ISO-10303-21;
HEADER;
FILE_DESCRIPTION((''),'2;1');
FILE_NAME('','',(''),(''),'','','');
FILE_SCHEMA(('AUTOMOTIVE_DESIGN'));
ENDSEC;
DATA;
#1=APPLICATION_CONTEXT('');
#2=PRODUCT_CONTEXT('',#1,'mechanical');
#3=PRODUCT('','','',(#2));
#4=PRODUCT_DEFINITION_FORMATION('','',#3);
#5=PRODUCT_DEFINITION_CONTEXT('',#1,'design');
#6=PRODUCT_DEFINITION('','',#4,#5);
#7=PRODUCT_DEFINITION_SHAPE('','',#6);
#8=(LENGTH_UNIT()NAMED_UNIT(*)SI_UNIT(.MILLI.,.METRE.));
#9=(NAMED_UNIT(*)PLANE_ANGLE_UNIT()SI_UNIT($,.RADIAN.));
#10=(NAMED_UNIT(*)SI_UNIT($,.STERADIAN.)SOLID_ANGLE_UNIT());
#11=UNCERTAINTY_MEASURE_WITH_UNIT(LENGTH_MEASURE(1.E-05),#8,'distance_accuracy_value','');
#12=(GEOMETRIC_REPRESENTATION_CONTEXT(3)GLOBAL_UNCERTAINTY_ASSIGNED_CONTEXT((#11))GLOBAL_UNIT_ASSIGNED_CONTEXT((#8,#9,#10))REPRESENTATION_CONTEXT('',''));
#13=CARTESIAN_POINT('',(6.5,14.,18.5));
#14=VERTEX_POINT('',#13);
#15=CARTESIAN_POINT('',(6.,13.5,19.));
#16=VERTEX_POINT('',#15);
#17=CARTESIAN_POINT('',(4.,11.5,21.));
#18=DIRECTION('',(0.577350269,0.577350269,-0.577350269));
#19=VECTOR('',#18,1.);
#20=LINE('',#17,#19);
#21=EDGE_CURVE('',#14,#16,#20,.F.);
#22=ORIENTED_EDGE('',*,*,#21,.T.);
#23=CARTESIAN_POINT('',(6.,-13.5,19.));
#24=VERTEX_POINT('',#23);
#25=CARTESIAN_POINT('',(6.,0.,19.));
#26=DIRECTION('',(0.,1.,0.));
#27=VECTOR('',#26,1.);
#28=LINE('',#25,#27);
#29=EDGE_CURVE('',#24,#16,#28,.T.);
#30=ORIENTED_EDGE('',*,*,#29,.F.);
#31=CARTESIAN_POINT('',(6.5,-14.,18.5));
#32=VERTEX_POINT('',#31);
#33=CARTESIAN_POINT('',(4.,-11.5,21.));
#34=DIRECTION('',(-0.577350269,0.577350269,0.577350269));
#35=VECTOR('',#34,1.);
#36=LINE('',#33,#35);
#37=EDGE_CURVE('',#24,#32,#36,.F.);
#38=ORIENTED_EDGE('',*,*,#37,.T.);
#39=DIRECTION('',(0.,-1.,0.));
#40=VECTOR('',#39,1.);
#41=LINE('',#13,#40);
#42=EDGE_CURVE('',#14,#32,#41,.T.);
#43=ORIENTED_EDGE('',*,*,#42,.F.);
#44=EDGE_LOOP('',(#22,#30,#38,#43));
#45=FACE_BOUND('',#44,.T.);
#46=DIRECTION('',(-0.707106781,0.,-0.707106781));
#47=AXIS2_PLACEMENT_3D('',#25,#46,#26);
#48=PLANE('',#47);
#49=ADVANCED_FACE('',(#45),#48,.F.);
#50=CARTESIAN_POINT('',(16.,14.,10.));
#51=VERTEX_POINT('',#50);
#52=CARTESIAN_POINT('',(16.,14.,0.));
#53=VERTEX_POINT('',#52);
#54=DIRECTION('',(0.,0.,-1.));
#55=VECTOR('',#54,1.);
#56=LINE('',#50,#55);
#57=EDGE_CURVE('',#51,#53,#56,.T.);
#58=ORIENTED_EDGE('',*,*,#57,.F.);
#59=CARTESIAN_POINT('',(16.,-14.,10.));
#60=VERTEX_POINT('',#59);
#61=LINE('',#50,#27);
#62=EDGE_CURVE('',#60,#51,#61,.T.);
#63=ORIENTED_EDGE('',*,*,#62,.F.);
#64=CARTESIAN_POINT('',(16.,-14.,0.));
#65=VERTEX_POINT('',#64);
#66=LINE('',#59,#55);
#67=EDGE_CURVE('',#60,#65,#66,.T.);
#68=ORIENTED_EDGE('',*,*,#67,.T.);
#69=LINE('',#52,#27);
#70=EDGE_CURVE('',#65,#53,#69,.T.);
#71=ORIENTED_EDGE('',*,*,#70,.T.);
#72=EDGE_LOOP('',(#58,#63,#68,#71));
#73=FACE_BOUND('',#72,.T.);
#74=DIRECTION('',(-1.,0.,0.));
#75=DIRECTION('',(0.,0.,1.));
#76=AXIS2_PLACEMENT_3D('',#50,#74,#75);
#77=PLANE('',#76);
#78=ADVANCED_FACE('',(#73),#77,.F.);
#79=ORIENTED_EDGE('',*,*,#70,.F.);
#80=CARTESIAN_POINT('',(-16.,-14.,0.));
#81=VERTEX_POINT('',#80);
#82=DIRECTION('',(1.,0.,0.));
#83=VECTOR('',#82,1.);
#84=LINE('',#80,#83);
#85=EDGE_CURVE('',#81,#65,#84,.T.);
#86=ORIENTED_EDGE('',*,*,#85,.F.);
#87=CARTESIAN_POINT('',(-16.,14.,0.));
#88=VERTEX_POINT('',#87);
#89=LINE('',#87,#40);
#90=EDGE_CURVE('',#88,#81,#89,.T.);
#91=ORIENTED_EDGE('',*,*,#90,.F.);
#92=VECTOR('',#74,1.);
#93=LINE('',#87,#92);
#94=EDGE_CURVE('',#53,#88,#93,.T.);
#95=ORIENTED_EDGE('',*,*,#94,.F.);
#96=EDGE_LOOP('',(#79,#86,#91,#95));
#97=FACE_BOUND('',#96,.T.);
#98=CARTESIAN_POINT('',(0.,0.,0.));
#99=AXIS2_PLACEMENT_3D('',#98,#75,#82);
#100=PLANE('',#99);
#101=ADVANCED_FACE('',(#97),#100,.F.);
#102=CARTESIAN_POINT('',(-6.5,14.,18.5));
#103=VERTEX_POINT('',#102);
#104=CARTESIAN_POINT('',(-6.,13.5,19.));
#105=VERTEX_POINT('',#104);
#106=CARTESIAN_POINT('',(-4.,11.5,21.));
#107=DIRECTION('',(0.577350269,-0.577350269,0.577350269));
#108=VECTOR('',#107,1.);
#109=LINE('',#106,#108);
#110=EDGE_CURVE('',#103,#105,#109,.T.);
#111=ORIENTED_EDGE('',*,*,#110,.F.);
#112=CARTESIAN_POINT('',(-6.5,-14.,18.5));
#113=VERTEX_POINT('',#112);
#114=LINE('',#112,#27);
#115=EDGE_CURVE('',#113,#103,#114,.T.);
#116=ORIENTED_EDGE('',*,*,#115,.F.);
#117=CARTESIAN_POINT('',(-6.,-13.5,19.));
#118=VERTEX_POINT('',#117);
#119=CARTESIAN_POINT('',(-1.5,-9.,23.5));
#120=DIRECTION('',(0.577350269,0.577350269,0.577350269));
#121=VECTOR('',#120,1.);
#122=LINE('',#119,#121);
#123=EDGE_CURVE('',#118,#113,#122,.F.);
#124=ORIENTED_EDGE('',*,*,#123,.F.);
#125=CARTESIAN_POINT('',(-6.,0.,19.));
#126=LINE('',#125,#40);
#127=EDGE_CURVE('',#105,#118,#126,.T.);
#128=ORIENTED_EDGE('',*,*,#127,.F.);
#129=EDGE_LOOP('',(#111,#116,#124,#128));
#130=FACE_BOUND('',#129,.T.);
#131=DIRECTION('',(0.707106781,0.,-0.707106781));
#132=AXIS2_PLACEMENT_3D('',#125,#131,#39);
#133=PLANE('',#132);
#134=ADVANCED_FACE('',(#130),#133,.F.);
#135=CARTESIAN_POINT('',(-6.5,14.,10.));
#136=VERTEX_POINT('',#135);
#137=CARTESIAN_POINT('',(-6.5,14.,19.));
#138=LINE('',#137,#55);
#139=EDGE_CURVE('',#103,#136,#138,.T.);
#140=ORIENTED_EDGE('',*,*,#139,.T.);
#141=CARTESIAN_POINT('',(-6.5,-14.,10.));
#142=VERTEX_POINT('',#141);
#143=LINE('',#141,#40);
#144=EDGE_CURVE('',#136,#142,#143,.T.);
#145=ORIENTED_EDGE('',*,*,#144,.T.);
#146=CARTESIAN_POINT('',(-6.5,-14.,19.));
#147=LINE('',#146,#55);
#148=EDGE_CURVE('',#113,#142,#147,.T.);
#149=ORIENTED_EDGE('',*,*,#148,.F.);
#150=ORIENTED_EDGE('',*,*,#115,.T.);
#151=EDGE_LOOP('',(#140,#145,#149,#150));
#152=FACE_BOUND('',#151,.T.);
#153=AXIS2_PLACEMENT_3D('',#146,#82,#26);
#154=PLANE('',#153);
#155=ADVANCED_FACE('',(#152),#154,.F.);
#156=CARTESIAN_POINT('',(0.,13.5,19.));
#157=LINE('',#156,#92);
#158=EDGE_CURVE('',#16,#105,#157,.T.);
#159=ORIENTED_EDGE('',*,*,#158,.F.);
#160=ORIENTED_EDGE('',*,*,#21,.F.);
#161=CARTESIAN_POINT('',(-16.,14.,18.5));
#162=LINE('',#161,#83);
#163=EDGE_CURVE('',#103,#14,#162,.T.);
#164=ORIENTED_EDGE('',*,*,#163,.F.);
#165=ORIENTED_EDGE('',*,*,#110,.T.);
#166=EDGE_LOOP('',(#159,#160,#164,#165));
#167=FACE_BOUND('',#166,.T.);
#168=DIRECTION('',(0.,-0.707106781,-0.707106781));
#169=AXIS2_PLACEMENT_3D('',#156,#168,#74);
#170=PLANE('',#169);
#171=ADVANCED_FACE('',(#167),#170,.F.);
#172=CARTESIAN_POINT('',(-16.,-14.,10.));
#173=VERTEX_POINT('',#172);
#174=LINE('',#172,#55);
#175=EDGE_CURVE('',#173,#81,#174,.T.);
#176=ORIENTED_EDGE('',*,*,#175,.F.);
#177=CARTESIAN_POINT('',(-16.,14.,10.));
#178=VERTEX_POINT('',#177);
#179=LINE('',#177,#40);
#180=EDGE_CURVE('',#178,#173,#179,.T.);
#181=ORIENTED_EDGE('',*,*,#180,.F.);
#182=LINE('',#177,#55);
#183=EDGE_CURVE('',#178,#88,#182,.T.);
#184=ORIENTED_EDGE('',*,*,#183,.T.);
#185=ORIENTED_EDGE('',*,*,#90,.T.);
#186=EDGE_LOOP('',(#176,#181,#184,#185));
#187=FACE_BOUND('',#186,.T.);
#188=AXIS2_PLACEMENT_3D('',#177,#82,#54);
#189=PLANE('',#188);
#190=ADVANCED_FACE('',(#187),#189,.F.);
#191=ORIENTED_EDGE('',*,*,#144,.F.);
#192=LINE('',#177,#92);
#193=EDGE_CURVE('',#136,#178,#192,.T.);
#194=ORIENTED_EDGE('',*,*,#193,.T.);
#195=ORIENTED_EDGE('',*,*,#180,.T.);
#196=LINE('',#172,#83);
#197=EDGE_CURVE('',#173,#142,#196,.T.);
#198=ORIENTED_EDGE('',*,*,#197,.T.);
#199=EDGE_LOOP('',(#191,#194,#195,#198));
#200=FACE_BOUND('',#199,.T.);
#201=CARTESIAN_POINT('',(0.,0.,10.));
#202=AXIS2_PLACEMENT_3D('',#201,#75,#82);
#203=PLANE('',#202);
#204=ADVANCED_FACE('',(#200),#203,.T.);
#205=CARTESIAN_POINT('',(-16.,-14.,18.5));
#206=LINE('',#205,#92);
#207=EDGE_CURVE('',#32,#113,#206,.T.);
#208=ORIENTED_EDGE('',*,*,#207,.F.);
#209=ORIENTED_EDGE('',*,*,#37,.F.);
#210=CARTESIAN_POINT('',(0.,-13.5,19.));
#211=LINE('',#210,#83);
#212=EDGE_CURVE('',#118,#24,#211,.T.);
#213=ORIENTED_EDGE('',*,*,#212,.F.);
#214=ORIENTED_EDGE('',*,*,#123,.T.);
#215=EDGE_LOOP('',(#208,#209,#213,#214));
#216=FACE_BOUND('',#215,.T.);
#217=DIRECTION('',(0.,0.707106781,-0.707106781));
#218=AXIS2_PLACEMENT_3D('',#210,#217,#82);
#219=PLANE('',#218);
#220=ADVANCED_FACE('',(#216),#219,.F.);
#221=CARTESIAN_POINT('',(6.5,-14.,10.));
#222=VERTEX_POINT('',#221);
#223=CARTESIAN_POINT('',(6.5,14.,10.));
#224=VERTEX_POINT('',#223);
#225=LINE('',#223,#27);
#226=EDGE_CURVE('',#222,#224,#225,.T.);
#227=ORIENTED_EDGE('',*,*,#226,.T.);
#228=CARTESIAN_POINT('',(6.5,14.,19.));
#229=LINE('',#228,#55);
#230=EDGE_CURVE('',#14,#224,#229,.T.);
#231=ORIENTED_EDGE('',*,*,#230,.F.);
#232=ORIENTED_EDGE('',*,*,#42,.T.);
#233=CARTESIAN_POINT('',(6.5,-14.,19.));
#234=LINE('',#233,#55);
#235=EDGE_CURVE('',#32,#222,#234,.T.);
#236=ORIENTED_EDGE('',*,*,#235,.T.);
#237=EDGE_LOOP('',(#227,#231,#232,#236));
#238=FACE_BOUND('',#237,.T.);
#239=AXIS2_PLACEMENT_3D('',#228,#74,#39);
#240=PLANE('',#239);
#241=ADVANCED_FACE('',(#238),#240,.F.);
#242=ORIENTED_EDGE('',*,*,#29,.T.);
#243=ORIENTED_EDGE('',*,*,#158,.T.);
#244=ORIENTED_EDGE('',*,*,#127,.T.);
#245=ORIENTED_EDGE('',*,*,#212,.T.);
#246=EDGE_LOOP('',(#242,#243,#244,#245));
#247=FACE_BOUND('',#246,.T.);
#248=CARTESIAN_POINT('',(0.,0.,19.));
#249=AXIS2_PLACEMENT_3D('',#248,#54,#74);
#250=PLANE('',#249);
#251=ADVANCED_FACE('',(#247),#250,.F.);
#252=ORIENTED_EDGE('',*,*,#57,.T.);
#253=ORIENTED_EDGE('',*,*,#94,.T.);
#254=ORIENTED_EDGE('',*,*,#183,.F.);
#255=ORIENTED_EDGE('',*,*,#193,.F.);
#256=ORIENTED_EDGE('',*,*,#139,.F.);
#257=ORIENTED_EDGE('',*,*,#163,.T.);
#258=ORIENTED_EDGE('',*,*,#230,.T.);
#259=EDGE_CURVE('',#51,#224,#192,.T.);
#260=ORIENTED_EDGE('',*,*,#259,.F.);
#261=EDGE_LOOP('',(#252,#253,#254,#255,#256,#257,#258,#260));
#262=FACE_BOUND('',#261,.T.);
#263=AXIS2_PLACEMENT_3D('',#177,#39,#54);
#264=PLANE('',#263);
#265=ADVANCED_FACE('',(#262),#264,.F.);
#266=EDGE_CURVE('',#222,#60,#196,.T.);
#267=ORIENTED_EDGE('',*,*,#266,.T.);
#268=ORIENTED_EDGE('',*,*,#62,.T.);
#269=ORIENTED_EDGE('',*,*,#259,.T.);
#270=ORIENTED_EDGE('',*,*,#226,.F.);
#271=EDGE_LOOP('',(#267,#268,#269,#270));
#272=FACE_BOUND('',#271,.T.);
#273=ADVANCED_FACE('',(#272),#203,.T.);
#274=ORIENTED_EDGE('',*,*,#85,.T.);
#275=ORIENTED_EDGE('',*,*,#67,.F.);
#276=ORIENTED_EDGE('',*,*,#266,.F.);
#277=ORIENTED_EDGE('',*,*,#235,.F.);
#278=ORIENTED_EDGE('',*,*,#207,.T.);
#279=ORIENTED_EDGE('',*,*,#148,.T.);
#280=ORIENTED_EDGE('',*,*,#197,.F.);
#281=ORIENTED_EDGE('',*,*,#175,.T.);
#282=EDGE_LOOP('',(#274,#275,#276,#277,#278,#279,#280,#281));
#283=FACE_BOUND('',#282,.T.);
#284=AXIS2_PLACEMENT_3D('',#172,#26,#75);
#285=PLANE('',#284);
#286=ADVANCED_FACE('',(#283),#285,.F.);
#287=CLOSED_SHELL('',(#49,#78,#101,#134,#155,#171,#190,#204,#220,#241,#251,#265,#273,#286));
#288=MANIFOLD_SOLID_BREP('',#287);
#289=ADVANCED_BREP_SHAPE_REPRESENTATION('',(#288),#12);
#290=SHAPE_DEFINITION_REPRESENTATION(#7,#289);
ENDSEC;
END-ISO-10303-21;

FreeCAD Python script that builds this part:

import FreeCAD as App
import Part
import Sketcher
from FreeCAD import Vector
Q = App.Units.Quantity


def edges_at(feature, points):
    """Names of the edges that pass closest to the given points."""
    edges = feature.Shape.Edges
    near = lambda p: min(range(len(edges)), key=lambda i: edges[i].distToShape(Part.Vertex(*p))[0])
    return sorted({f"Edge{near(p) + 1}" for p in points})


def add_polygon(sketch, points):
    """Adds a closed chain of lines whose ends are joined by coincident constraints."""
    first, n = sketch.GeometryCount, len(points)
    for a, b in zip(points, points[1:] + points[:1]):
        sketch.addGeometry(Part.LineSegment(App.Vector(*a, 0), App.Vector(*b, 0)), False)
    for i in range(n):
        sketch.addConstraint(Sketcher.Constraint("Coincident", first + i, 2, first + (i + 1) % n, 1))

doc = App.newDocument("Part")
params = doc.addObject("Spreadsheet::Sheet", "Params")
for row, (alias, value) in enumerate([
    ("sketch1_width", "32 mm"),
    ("sketch1_height", "28 mm"),
    ("pad1_length", "10 mm"),
    ("sketch2_width", "13 mm"),
    ("sketch2_height", "28 mm"),
    ("pad2_length", "9 mm"),
    ("chamfer_size", "0.5 mm"),
], start=1):
    params.set(f"A{row}", alias)
    params.set(f"B{row}", "=" + value)
    params.setAlias(f"B{row}", alias)

body = doc.addObject("PartDesign::Body", "Body")

sketch1 = body.newObject("Sketcher::SketchObject", "Sketch")
sketch1.AttachmentSupport = (doc.getObject("XY_Plane"), [""])
sketch1.MapMode = "FlatFace"
add_polygon(sketch1, [(-16, 14), (-16, -14), (16, -14), (16, 14)])
sketch1.addConstraint([
    Sketcher.Constraint("Vertical", 0),
    Sketcher.Constraint("Horizontal", 1),
    Sketcher.Constraint("Vertical", 2),
    Sketcher.Constraint("Horizontal", 3),
    Sketcher.Constraint("Symmetric", 0, 2, 2, 2, -1, 1),
    Sketcher.Constraint("DistanceX", 1, 1, 1, 2, Q("32 mm")),
    Sketcher.Constraint("DistanceY", 0, 2, 0, 1, Q("28 mm")),
])
sketch1.setExpression("Constraints[9]", "Params.sketch1_width")
sketch1.setExpression("Constraints[10]", "Params.sketch1_height")
pad1 = body.newObject("PartDesign::Pad", "Pad")
pad1.Profile = sketch1
pad1.setExpression("Length", "Params.pad1_length")

sketch2 = body.newObject("Sketcher::SketchObject", "Sketch001")
sketch2.AttachmentSupport = (doc.getObject("XY_Plane"), [""])
sketch2.MapMode = "FlatFace"
sketch2.AttachmentOffset = App.Placement(Vector(0, 0, 10), App.Rotation())
add_polygon(sketch2, [(6.5, 14), (-6.5, 14), (-6.5, -14), (6.5, -14)])
sketch2.addConstraint([
    Sketcher.Constraint("Horizontal", 0),
    Sketcher.Constraint("Vertical", 1),
    Sketcher.Constraint("Horizontal", 2),
    Sketcher.Constraint("Vertical", 3),
    Sketcher.Constraint("Symmetric", 0, 2, 2, 2, -1, 1),
    Sketcher.Constraint("DistanceX", 0, 2, 0, 1, Q("13 mm")),
    Sketcher.Constraint("DistanceY", 1, 2, 1, 1, Q("28 mm")),
])
sketch2.setExpression("Constraints[9]", "Params.sketch2_width")
sketch2.setExpression("Constraints[10]", "Params.sketch2_height")
pad2 = body.newObject("PartDesign::Pad", "Pad001")
pad2.Profile = sketch2
pad2.setExpression("Length", "Params.pad2_length")
doc.recompute()

chamfer = body.newObject("PartDesign::Chamfer", "Chamfer")
chamfer.Base = (pad2, edges_at(pad2, [
    (0, 14, 19),
    (-6.5, 0, 19),
    (0, -14, 19),
    (6.5, 0, 19),
]))
chamfer.setExpression("Size", "Params.chamfer_size")

doc.recompute()
